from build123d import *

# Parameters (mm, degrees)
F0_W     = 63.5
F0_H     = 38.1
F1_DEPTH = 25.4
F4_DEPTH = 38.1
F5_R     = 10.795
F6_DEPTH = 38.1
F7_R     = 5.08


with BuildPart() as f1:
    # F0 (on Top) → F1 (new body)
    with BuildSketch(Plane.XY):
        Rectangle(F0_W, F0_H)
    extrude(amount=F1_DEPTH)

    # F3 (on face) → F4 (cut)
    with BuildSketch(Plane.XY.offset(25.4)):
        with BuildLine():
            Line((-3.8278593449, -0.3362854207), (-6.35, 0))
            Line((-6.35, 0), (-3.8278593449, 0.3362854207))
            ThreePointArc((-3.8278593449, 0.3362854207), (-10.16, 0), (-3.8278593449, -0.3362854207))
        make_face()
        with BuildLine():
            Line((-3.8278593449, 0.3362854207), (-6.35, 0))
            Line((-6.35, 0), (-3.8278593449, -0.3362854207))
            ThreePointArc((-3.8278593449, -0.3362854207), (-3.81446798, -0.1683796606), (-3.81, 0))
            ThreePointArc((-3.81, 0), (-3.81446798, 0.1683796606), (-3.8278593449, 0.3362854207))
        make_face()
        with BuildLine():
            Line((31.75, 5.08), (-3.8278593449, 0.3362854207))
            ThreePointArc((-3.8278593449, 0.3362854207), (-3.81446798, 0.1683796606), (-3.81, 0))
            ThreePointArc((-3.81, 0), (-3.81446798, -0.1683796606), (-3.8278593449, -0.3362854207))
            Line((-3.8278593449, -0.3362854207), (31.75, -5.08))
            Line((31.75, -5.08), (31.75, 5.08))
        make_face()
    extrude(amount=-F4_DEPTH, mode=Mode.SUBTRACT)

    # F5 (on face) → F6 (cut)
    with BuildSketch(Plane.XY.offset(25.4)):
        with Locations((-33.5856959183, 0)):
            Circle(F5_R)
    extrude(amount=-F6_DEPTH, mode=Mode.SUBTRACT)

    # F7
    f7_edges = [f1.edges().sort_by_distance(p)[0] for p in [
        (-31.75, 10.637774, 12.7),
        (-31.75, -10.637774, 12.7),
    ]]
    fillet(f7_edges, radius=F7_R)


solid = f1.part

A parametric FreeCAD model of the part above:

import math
import FreeCAD as App
import Part
import Sketcher
Q = App.Units.Quantity


def edges_at(feature, points):
    """Names of the edges that pass closest to the given points."""
    edges = feature.Shape.Edges
    near = lambda p: min(range(len(edges)), key=lambda i: edges[i].distToShape(Part.Vertex(*p))[0])
    return sorted({f"Edge{near(p) + 1}" for p in points})

doc = App.newDocument("Part")
params = doc.addObject("Spreadsheet::Sheet", "Params")
for row, (alias, value) in enumerate([
    ("sketch1_width", "2.5 in"),
    ("sketch1_height", "1.5 in"),
    ("pad1_length", "1 in"),
    ("sketch2_height", "0.4 in"),
    ("sketch2_radius", "0.125 in"),
    ("pocket1_length", "1.5 in"),
    ("sketch3_diameter", "0.85 in"),
    ("pocket2_length", "1.5 in"),
    ("fillet_radius", "0.2 in"),
], start=1):
    params.set(f"A{row}", alias)
    params.set(f"B{row}", "=" + value)
    params.setAlias(f"B{row}", alias)

body = doc.addObject("PartDesign::Body", "Body")

# Sketch on XY plane
sketch1 = body.newObject("Sketcher::SketchObject", "Sketch")
sketch1.AttachmentSupport = (doc.getObject("XY_Plane"), [""])
sketch1.MapMode = "FlatFace"
sketch1.addGeometry([
    Part.LineSegment(App.Vector(-32, 19, 0), App.Vector(-32, -19, 0)),
    Part.LineSegment(App.Vector(-32, -19, 0), App.Vector(32, -19, 0)),
    Part.LineSegment(App.Vector(32, -19, 0), App.Vector(32, 19, 0)),
    Part.LineSegment(App.Vector(32, 19, 0), App.Vector(-32, 19, 0)),
], False)
sketch1.addConstraint([
    Sketcher.Constraint("Coincident", 0, 2, 1, 1),
    Sketcher.Constraint("Coincident", 1, 2, 2, 1),
    Sketcher.Constraint("Coincident", 2, 2, 3, 1),
    Sketcher.Constraint("Coincident", 3, 2, 0, 1),
    Sketcher.Constraint("Vertical", 0),
    Sketcher.Constraint("Horizontal", 1),
    Sketcher.Constraint("Vertical", 2),
    Sketcher.Constraint("Horizontal", 3),
    Sketcher.Constraint("Symmetric", 0, 2, 2, 2, -1, 1),
    Sketcher.Constraint("DistanceX", 1, 1, 1, 2, Q("2.5 in")),
    Sketcher.Constraint("DistanceY", 0, 2, 0, 1, Q("1.5 in")),
])
sketch1.setExpression("Constraints[9]", "Params.sketch1_width")
sketch1.setExpression("Constraints[10]", "Params.sketch1_height")
pad1 = body.newObject("PartDesign::Pad", "Pad")
pad1.Profile = sketch1
pad1.setExpression("Length", "Params.pad1_length")

# Sketch on XY plane
sketch2 = body.newObject("Sketcher::SketchObject", "Sketch001")
sketch2.AttachmentSupport = (doc.getObject("XY_Plane"), [""])
sketch2.MapMode = "FlatFace"
sketch2.AttachmentOffset = App.Placement(App.Vector(0, 0, 1 * 25.4), App.Rotation())
sketch2.addGeometry([
    Part.ArcOfCircle(Part.Circle(App.Vector(-7, 0, 0), App.Vector(0, 0, 1), 3.2), math.radians(6), math.radians(354)),
    Part.LineSegment(App.Vector(-3.8, -0.3, 0), App.Vector(31.8, -5.1, 0)),
    Part.LineSegment(App.Vector(31.8, -5.1, 0), App.Vector(31.8, 5.1, 0)),
    Part.LineSegment(App.Vector(31.8, 5.1, 0), App.Vector(-3.8, 0.3, 0)),
], False)
sketch2.addConstraint([
    Sketcher.Constraint("Coincident", 0, 2, 1, 1),
    Sketcher.Constraint("Coincident", 1, 2, 2, 1),
    Sketcher.Constraint("Coincident", 2, 2, 3, 1),
    Sketcher.Constraint("Coincident", 3, 2, 0, 1),
    Sketcher.Constraint("Vertical", 2),
    Sketcher.Constraint("Symmetric", 0, 2, 3, 2, -1),
    Sketcher.Constraint("Equal", 1, 3),
    Sketcher.Constraint("DistanceY", 2, 1, 2, 2, Q("0.4 in")),
    Sketcher.Constraint("Radius", 0, Q("0.125 in")),
    Sketcher.Constraint("DistanceX", -1, 1, 1, 2, Q("1.25 in")),
    Sketcher.Constraint("DistanceX", 0, 3, -1, 1, Q("0.275 in")),
    Sketcher.Constraint("DistanceX", 0, 2, -1, 1, 3.827859),
])
sketch2.setExpression("Constraints[7]", "Params.sketch2_height")
sketch2.setExpression("Constraints[8]", "Params.sketch2_radius")
pocket1 = body.newObject("PartDesign::Pocket", "Pocket")
pocket1.Profile = sketch2
pocket1.setExpression("Length", "Params.pocket1_length")

# Sketch on XY plane
sketch3 = body.newObject("Sketcher::SketchObject", "Sketch002")
sketch3.AttachmentSupport = (doc.getObject("XY_Plane"), [""])
sketch3.MapMode = "FlatFace"
sketch3.AttachmentOffset = App.Placement(App.Vector(0, 0, 1 * 25.4), App.Rotation())
sketch3.addGeometry(Part.Circle(App.Vector(-34, 0, 0), App.Vector(0, 0, 1), 11), False)
sketch3.addConstraint([
    Sketcher.Constraint("PointOnObject", 0, 3, -1),
    Sketcher.Constraint("Diameter", 0, Q("0.85 in")),
    Sketcher.Constraint("DistanceX", 0, 3, -1, 1, 33.585696),
])
sketch3.setExpression("Constraints[1]", "Params.sketch3_diameter")
pocket2 = body.newObject("PartDesign::Pocket", "Pocket001")
pocket2.Profile = sketch3
pocket2.setExpression("Length", "Params.pocket2_length")
doc.recompute()

fillet = body.newObject("PartDesign::Fillet", "Fillet")
fillet.Base = (pocket2, edges_at(pocket2, [(-31.75, 10.638, 12.7), (-31.75, -10.638, 12.7)]))
fillet.setExpression("Radius", "Params.fillet_radius")

doc.recompute()
